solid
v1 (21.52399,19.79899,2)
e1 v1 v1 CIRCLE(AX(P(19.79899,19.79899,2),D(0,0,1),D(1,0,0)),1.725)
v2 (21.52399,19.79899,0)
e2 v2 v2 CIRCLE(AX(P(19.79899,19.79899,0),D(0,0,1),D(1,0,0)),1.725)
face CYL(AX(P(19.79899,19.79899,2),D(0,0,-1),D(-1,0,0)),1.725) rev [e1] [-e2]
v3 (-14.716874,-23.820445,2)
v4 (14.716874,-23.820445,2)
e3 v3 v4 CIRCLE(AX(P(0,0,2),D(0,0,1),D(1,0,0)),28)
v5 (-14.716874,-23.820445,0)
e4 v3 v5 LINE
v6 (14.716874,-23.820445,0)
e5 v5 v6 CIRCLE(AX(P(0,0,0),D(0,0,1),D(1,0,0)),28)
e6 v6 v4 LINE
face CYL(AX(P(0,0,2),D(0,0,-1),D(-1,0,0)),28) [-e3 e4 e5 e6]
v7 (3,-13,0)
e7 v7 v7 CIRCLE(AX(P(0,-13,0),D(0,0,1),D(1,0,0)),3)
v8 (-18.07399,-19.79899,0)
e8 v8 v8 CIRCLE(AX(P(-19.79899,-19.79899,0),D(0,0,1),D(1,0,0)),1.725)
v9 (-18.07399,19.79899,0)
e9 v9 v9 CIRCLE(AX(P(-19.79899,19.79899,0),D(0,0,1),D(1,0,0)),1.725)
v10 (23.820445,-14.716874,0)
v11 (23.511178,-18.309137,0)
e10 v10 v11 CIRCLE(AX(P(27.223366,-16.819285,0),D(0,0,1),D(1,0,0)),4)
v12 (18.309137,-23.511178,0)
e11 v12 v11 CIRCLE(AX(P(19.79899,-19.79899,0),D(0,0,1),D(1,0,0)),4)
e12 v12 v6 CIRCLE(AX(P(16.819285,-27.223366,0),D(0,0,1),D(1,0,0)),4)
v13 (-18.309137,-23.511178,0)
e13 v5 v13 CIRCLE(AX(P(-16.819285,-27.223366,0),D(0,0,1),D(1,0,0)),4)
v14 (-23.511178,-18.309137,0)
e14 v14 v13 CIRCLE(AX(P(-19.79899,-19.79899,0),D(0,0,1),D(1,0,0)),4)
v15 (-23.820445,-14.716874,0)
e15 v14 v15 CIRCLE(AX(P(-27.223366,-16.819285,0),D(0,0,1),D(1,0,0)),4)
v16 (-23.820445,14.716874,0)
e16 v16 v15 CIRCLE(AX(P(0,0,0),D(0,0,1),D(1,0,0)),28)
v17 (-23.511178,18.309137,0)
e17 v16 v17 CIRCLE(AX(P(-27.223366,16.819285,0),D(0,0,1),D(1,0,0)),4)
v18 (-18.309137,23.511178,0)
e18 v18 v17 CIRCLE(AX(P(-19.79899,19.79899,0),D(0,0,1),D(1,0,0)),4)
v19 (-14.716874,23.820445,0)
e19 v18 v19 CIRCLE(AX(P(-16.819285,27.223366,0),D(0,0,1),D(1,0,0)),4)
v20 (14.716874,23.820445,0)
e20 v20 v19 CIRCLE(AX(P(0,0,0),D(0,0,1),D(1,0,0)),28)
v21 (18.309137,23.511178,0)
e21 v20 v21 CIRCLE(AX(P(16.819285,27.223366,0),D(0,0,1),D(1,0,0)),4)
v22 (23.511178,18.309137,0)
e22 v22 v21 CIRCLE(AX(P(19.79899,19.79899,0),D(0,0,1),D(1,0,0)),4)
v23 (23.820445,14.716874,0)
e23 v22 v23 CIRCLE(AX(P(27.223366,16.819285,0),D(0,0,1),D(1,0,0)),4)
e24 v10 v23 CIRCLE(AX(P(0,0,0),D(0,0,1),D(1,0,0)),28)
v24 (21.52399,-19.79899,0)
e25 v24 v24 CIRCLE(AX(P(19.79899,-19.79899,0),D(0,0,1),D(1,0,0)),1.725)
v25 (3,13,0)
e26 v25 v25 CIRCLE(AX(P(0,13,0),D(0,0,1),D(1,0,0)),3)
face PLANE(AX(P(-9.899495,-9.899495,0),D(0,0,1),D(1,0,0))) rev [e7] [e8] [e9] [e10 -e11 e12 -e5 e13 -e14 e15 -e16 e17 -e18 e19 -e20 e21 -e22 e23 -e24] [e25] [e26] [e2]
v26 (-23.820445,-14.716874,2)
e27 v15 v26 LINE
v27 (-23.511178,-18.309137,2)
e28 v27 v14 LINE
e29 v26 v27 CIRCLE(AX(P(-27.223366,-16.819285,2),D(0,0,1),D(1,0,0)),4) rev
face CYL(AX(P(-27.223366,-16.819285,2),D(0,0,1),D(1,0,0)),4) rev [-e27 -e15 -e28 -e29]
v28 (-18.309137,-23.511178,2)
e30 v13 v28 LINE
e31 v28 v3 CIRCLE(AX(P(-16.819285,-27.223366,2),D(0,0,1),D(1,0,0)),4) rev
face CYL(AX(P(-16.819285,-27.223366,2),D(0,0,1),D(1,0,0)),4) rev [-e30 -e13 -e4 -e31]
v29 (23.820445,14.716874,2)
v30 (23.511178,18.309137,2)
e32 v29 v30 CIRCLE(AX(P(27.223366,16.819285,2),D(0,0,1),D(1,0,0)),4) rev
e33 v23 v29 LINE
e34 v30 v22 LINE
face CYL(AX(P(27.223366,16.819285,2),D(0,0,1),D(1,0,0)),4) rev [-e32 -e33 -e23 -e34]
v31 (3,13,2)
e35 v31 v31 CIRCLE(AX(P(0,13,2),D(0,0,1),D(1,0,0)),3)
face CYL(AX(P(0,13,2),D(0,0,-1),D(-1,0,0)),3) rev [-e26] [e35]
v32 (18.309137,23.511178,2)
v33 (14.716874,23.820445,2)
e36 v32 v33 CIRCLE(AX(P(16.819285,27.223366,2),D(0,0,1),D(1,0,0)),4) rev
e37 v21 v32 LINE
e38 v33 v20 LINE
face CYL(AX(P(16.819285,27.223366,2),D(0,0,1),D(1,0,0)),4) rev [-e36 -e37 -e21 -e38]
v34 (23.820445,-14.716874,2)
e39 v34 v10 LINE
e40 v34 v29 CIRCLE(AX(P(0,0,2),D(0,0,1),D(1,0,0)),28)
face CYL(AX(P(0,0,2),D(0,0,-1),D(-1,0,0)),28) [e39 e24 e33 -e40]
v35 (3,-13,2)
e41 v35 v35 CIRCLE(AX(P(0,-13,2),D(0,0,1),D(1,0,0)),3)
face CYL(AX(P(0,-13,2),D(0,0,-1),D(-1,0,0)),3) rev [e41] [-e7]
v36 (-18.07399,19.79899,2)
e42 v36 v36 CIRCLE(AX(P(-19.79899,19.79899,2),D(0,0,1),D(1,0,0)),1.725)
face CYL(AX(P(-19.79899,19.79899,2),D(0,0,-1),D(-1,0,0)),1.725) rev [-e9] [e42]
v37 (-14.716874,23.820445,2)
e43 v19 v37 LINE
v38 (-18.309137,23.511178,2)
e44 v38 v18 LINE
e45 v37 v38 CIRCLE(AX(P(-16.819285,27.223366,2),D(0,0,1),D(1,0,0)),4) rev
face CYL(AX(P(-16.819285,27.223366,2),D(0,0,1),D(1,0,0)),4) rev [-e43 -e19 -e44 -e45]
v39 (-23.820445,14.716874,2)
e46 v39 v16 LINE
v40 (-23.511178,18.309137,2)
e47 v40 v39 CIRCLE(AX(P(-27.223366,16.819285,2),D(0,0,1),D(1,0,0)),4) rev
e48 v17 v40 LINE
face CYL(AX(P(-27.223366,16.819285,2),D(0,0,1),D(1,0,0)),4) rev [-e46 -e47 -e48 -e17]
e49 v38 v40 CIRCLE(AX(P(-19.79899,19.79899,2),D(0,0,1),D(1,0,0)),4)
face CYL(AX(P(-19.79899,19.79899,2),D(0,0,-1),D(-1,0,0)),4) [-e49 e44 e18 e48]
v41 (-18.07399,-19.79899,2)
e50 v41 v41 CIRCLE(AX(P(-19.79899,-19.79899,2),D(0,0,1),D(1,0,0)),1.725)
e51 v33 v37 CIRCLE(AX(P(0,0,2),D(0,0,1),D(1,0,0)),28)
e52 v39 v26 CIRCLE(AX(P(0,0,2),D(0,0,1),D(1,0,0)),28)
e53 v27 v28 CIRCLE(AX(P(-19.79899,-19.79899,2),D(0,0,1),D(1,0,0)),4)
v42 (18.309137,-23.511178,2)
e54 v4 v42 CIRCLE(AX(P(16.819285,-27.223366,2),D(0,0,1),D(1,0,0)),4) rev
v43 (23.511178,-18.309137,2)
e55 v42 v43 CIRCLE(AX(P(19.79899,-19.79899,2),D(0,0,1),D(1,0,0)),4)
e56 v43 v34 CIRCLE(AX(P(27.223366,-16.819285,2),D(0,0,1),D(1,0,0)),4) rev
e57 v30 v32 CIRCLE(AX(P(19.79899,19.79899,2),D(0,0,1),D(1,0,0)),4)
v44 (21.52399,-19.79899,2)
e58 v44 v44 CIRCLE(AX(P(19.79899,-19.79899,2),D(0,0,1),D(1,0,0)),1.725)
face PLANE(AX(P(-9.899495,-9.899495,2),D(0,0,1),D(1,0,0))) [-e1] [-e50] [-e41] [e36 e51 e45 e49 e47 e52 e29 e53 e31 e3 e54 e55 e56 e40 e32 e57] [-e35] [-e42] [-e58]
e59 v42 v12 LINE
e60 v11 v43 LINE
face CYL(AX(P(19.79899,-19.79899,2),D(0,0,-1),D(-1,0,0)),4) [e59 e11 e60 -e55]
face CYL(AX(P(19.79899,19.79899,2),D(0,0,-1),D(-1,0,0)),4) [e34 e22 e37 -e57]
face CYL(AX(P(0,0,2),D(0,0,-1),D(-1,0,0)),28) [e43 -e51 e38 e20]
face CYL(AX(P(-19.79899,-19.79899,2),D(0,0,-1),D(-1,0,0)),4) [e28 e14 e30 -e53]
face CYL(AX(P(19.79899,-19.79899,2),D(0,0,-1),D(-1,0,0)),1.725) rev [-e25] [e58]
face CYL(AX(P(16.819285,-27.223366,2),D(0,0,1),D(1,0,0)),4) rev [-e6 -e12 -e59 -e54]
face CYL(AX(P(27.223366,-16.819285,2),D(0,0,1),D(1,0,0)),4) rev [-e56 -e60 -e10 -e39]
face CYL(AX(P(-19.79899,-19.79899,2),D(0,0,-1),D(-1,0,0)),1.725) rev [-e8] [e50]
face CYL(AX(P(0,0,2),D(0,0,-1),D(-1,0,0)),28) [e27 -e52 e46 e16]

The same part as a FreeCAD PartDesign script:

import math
import FreeCAD as App
import Part
import Sketcher

V = App.Vector


def edges_at(feature, points):
    """Names of the edges that pass closest to the given points."""
    edges = feature.Shape.Edges
    near = lambda p: min(range(len(edges)), key=lambda i: edges[i].distToShape(Part.Vertex(*p))[0])
    return sorted({f"Edge{near(p) + 1}" for p in points})

doc = App.newDocument("Part")
body = doc.addObject("PartDesign::Body", "Body")

# Sketch on XY plane
sketch1 = body.newObject("Sketcher::SketchObject", "Sketch")
sketch1.AttachmentSupport = (doc.getObject("XY_Plane"), [""])
sketch1.MapMode = "FlatFace"
sketch1.addGeometry([
    Part.ArcOfCircle(Part.Circle(V(0, 0, 0), V(0, 0, 1), 28), math.radians(53), math.radians(127)),  # 0
    Part.ArcOfCircle(Part.Circle(V(-19.8, 19.8, 0), V(0, 0, 1), 4), math.radians(41), math.radians(229)),  # 1
    Part.ArcOfCircle(Part.Circle(V(0, 0, 0), V(0, 0, 1), 28), math.radians(143), math.radians(217)),  # 2
    Part.ArcOfCircle(Part.Circle(V(-19.8, -19.8, 0), V(0, 0, 1), 4), math.radians(131), math.radians(319)),  # 3
    Part.ArcOfCircle(Part.Circle(V(0, 0, 0), V(0, 0, 1), 28), math.radians(-127), math.radians(-53)),  # 4
    Part.ArcOfCircle(Part.Circle(V(19.8, -19.8, 0), V(0, 0, 1), 4), math.radians(-139), math.radians(49)),  # 5
    Part.ArcOfCircle(Part.Circle(V(0, 0, 0), V(0, 0, 1), 28), math.radians(-37), math.radians(37)),  # 6
    Part.ArcOfCircle(Part.Circle(V(19.8, 19.8, 0), V(0, 0, 1), 4), math.radians(-49), math.radians(139)),  # 7
    Part.Circle(V(-19.8, -19.8, 0), V(0, 0, 1), 1.7),  # 8
    Part.Circle(V(0, -13, 0), V(0, 0, 1), 3),  # 9
    Part.Circle(V(19.8, -19.8, 0), V(0, 0, 1), 1.7),  # 10
    Part.Circle(V(-19.8, 19.8, 0), V(0, 0, 1), 1.7),  # 11
    Part.Circle(V(0, 13, 0), V(0, 0, 1), 3),  # 12
    Part.Circle(V(19.8, 19.8, 0), V(0, 0, 1), 1.7),  # 13
], False)
sketch1.addConstraint([
    Sketcher.Constraint("Coincident", 0, 2, 1, 1),
    Sketcher.Constraint("Coincident", 1, 2, 2, 1),
    Sketcher.Constraint("Coincident", 2, 2, 3, 1),
    Sketcher.Constraint("Coincident", 3, 2, 4, 1),
    Sketcher.Constraint("Coincident", 4, 2, 5, 1),
    Sketcher.Constraint("Coincident", 5, 2, 6, 1),
    Sketcher.Constraint("Coincident", 6, 2, 7, 1),
    Sketcher.Constraint("Coincident", 7, 2, 0, 1),
    Sketcher.Constraint("Coincident", 0, 3, -1, 1),
    Sketcher.Constraint("Coincident", 2, 3, -1, 1),
    Sketcher.Constraint("Coincident", 4, 3, -1, 1),
    Sketcher.Constraint("Coincident", 6, 3, -1, 1),
    Sketcher.Constraint("Coincident", 8, 3, 3, 3),
    Sketcher.Constraint("Coincident", 10, 3, 5, 3),
    Sketcher.Constraint("Coincident", 11, 3, 1, 3),
    Sketcher.Constraint("Coincident", 13, 3, 7, 3),
    Sketcher.Constraint("Equal", 0, 2),
    Sketcher.Constraint("Equal", 1, 3),
    Sketcher.Constraint("Equal", 2, 4),
    Sketcher.Constraint("Equal", 3, 5),
    Sketcher.Constraint("Equal", 4, 6),
    Sketcher.Constraint("Equal", 5, 7),
    Sketcher.Constraint("Equal", 8, 10),
    Sketcher.Constraint("Equal", 10, 11),
    Sketcher.Constraint("Equal", 9, 12),
    Sketcher.Constraint("Equal", 11, 13),
    Sketcher.Constraint("Symmetric", 1, 3, 5, 3, -1, 1),
    Sketcher.Constraint("Symmetric", 3, 3, 7, 3, -1, 1),
    Sketcher.Constraint("Symmetric", 9, 3, 12, 3, -1, 1),
    Sketcher.Constraint("Symmetric", 3, 3, 5, 3, -2),
    Sketcher.Constraint("PointOnObject", 9, 3, -2),
    Sketcher.Constraint("Diameter", 9, 6.0),
    Sketcher.Constraint("Radius", 0, 28.0),
    Sketcher.Constraint("Radius", 1, 4.0),
    Sketcher.Constraint("Diameter", 8, 3.45),
    Sketcher.Constraint("DistanceY", 9, 3, -1, 1, 13.0),
    Sketcher.Constraint("DistanceX", 1, 3, -1, 1, 19.79899),
    Sketcher.Constraint("DistanceY", -1, 1, 1, 3, 19.79899),
])
pad1 = body.newObject("PartDesign::Pad", "Pad")
pad1.Profile = sketch1
pad1.Length = 2
doc.recompute()

fillet = body.newObject("PartDesign::Fillet", "Fillet")
fillet.Base = (pad1, edges_at(pad1, [
    (-22.418, 16.776, 1),
    (-16.776, 22.418, 1),
    (16.776, 22.418, 1),
    (22.418, 16.776, 1),
    (22.418, -16.776, 1),
    (16.776, -22.418, 1),
    (-16.776, -22.418, 1),
    (-22.418, -16.776, 1),
]))
fillet.Radius = 4

doc.recompute()
